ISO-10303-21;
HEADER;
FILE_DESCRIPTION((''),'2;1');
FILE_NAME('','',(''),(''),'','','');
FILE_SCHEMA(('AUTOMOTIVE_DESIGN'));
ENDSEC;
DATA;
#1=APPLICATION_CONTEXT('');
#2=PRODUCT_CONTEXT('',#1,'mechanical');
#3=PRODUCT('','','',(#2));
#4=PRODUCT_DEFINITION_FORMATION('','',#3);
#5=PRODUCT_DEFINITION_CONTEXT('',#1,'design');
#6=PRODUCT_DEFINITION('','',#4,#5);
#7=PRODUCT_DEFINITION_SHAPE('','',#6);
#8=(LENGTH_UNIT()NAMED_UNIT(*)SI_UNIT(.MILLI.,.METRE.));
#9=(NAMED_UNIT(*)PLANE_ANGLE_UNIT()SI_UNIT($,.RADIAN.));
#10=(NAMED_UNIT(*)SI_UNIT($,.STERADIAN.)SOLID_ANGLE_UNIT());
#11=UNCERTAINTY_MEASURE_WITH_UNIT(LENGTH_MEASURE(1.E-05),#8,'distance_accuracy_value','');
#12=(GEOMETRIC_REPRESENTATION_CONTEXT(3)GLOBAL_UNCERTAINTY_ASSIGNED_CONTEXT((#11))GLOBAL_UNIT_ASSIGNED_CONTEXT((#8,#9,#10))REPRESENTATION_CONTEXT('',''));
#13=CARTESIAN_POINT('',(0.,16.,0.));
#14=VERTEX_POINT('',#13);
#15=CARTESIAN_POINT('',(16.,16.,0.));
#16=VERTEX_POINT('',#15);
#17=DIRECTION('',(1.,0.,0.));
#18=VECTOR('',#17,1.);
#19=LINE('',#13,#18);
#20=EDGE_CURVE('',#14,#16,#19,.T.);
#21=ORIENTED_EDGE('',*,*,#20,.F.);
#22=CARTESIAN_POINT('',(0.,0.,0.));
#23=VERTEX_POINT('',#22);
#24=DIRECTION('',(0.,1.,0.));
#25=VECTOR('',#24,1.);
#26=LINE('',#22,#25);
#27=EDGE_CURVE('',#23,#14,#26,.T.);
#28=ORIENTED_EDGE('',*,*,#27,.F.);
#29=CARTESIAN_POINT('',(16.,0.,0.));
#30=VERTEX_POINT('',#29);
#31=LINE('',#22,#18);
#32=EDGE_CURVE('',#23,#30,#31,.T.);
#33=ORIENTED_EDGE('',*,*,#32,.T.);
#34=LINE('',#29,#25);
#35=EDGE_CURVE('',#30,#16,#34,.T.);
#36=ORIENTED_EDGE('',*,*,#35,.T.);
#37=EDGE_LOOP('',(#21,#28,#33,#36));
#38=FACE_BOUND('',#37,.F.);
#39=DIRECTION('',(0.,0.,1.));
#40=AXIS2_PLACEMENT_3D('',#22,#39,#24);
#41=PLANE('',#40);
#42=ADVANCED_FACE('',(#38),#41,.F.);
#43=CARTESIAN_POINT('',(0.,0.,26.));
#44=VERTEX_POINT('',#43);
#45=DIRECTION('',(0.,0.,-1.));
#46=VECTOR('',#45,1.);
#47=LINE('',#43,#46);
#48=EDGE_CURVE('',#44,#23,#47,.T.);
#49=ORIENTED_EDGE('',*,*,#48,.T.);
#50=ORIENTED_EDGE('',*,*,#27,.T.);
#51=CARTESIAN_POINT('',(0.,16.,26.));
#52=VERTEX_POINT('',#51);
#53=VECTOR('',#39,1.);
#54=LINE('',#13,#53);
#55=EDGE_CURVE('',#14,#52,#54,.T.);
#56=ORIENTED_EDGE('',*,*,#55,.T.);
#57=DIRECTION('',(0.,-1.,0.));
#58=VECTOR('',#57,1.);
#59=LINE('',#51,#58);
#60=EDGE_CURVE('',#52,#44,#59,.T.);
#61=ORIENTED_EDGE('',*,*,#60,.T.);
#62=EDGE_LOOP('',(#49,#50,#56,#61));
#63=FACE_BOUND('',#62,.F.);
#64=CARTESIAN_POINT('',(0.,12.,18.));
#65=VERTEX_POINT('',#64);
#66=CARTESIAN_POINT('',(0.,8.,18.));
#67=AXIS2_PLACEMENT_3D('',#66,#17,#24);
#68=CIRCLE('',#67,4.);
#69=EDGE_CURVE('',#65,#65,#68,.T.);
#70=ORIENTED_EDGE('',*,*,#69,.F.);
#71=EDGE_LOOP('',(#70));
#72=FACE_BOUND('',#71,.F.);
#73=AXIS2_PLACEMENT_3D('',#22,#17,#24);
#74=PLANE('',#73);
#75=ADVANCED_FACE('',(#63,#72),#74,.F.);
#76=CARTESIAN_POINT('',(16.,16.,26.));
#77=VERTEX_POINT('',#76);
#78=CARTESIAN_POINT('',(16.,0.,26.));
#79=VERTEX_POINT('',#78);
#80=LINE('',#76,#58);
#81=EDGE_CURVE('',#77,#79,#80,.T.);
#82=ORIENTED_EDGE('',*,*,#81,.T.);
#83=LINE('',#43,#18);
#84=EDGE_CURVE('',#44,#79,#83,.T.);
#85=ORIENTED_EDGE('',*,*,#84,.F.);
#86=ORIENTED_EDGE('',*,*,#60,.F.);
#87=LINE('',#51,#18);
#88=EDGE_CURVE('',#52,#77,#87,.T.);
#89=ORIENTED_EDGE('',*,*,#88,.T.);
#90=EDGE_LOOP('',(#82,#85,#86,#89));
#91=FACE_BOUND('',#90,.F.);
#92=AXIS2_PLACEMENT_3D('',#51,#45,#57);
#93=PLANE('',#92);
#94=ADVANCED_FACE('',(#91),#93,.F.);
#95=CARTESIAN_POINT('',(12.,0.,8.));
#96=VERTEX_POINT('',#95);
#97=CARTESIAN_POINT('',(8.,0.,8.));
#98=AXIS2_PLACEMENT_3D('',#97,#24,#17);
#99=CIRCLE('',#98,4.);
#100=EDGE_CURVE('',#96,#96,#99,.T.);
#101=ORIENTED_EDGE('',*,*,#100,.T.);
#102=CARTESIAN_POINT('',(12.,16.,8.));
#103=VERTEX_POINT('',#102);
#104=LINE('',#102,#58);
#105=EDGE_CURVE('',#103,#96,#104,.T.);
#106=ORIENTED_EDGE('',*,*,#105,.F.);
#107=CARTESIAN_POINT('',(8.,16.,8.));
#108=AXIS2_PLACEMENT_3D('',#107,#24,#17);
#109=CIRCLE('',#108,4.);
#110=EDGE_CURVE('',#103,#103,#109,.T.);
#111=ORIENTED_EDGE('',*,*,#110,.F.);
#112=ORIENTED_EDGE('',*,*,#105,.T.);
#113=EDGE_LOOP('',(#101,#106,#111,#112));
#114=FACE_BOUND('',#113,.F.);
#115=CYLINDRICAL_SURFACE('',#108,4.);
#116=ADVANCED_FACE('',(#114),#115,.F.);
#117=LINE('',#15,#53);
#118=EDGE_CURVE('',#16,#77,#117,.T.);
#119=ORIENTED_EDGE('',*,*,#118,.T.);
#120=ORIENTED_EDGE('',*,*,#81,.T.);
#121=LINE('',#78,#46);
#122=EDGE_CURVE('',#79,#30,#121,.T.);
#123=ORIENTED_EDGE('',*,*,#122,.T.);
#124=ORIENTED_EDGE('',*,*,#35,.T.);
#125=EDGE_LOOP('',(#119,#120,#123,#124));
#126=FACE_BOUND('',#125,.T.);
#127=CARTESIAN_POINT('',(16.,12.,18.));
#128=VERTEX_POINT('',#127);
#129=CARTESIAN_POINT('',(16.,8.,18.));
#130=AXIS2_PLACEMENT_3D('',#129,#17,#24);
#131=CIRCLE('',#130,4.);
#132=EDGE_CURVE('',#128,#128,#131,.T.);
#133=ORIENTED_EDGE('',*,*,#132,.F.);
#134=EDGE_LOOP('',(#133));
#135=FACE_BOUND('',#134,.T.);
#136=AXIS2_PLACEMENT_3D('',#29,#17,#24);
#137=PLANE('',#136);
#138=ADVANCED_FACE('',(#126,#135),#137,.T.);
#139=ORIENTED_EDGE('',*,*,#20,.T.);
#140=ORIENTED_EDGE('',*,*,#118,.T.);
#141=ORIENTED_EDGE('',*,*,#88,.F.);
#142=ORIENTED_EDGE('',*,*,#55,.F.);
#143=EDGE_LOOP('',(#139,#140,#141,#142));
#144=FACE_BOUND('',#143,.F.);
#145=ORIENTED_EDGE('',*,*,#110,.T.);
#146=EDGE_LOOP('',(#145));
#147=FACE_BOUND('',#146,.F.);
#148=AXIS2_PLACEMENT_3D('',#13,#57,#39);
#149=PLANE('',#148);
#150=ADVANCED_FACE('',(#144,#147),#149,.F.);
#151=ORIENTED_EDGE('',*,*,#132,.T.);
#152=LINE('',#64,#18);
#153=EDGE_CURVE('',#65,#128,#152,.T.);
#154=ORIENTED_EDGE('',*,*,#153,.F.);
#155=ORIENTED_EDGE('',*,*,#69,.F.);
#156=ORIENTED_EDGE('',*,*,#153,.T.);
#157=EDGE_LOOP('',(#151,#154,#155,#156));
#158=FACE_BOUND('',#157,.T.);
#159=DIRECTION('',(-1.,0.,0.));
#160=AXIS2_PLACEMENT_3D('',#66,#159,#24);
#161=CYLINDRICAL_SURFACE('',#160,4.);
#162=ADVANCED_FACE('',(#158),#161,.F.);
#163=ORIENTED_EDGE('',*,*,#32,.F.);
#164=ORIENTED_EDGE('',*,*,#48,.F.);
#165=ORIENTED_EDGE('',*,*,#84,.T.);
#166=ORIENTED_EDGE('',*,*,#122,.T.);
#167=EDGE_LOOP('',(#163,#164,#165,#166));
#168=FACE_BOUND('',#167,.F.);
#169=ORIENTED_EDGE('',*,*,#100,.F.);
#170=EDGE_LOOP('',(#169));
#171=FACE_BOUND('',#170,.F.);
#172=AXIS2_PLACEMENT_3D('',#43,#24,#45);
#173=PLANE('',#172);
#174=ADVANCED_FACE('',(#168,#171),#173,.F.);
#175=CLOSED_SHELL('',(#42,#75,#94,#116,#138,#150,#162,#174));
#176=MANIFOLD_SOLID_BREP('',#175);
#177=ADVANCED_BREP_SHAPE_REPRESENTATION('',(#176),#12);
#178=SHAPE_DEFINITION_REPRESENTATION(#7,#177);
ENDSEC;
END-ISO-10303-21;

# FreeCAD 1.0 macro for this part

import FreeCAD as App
import Part
import Sketcher
from FreeCAD import Vector
Q = App.Units.Quantity


def add_polygon(sketch, points):
    """Adds a closed chain of lines whose ends are joined by coincident constraints."""
    first, n = sketch.GeometryCount, len(points)
    for a, b in zip(points, points[1:] + points[:1]):
        sketch.addGeometry(Part.LineSegment(App.Vector(*a, 0), App.Vector(*b, 0)), False)
    for i in range(n):
        sketch.addConstraint(Sketcher.Constraint("Coincident", first + i, 2, first + (i + 1) % n, 1))

doc = App.newDocument("Part")
body = doc.addObject("PartDesign::Body", "Body")

# Sketch on YZ plane
sketch1 = doc.addObject("Sketcher::SketchObject", "Sketch")
body.addObject(sketch1)
sketch1.AttachmentSupport = (doc.YZ_Plane, [""])
sketch1.MapMode = "FlatFace"
add_polygon(sketch1, [(0, 26), (0, 0), (16, 0), (16, 26)])  # lines 0-3
sketch1.addGeometry(Part.Circle(Vector(8, 18, 0), Vector(0, 0, 1), 4), False)  # 4
sketch1.addConstraint([
    Sketcher.Constraint("Vertical", 0),
    Sketcher.Constraint("Horizontal", 1),
    Sketcher.Constraint("Vertical", 2),
    Sketcher.Constraint("Horizontal", 3),
    Sketcher.Constraint("Coincident", 0, 2, -1, 1),
    Sketcher.Constraint("Diameter", 4, Q("8 mm")),
    Sketcher.Constraint("DistanceX", 1, 1, 1, 2, Q("16 mm")),
    Sketcher.Constraint("DistanceY", 0, 2, 0, 1, Q("26 mm")),
    Sketcher.Constraint("DistanceX", -1, 1, 4, 3, Q("8 mm")),
    Sketcher.Constraint("DistanceY", 4, 3, 2, 2, Q("8 mm")),
])
pad1 = doc.addObject("PartDesign::Pad", "Pad")
body.addObject(pad1)
pad1.Profile = sketch1
pad1.Length = 16

# Sketch on XZ plane
sketch2 = doc.addObject("Sketcher::SketchObject", "Sketch001")
body.addObject(sketch2)
sketch2.AttachmentSupport = (doc.XZ_Plane, [""])
sketch2.MapMode = "FlatFace"
sketch2.AttachmentOffset = App.Placement(Vector(0, 0, -16), App.Rotation())
sketch2.addGeometry(Part.Circle(Vector(8, 8, 0), Vector(0, 0, 1), 4), False)
sketch2.addConstraint([
    Sketcher.Constraint("Diameter", 0, Q("8 mm")),
    Sketcher.Constraint("DistanceX", -1, 1, 0, 3, Q("8 mm")),
    Sketcher.Constraint("DistanceY", -1, 1, 0, 3, Q("8 mm")),
])
pocket1 = doc.addObject("PartDesign::Pocket", "Pocket")
body.addObject(pocket1)
pocket1.Profile = sketch2
pocket1.Length = 16
pocket1.Reversed = True

doc.recompute()
